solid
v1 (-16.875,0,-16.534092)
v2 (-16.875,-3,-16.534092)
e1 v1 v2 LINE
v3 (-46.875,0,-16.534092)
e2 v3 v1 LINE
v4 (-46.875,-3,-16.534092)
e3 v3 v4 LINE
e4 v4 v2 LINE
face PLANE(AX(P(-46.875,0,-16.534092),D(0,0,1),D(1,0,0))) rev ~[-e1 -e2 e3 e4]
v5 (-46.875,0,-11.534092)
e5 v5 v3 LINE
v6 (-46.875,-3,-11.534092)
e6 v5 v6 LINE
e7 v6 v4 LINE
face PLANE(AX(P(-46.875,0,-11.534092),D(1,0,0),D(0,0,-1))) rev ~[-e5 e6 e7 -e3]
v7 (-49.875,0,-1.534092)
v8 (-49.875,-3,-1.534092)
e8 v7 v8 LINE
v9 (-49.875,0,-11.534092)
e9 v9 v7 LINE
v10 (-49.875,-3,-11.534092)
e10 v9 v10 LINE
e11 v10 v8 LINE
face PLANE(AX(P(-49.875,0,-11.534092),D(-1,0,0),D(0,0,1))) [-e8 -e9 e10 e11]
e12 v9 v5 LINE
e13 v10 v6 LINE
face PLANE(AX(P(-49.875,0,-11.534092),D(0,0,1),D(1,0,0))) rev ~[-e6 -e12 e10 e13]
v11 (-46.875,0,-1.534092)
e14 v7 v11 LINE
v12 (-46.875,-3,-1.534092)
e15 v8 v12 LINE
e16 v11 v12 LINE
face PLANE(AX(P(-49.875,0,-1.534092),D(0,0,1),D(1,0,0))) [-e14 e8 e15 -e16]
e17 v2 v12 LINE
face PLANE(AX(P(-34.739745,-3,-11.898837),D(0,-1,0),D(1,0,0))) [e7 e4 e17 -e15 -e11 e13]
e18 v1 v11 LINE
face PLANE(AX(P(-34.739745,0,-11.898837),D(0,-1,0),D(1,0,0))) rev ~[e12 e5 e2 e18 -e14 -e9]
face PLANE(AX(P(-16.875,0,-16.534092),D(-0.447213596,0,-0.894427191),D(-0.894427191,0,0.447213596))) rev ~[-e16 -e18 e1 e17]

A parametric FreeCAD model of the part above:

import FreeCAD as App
import Part
import Sketcher
Q = App.Units.Quantity


def add_polygon(sketch, points):
    """Adds a closed chain of lines whose ends are joined by coincident constraints."""
    first, n = sketch.GeometryCount, len(points)
    for a, b in zip(points, points[1:] + points[:1]):
        sketch.addGeometry(Part.LineSegment(App.Vector(*a, 0), App.Vector(*b, 0)), False)
    for i in range(n):
        sketch.addConstraint(Sketcher.Constraint("Coincident", first + i, 2, first + (i + 1) % n, 1))

doc = App.newDocument("Part")
body = doc.addObject("PartDesign::Body", "Body")

# Sketch on XZ plane
sketch1 = doc.addObject("Sketcher::SketchObject", "Sketch")
body.addObject(sketch1)
sketch1.AttachmentSupport = (doc.XZ_Plane, [""])
sketch1.MapMode = "FlatFace"
add_polygon(sketch1, [(-16.9, -16.5), (-46.9, -1.5), (-49.9, -1.5), (-49.9, -11.5), (-46.9, -11.5), (-46.9, -16.5)])  # lines 0-5
sketch1.addConstraint([
    Sketcher.Constraint("Horizontal", 1),
    Sketcher.Constraint("Vertical", 2),
    Sketcher.Constraint("Horizontal", 3),
    Sketcher.Constraint("Vertical", 4),
    Sketcher.Constraint("Horizontal", 5),
    Sketcher.Constraint("Vertical", 0, 2, 3, 2),
    Sketcher.Constraint("DistanceX", 1, 2, 1, 1, Q("3 mm")),
    Sketcher.Constraint("DistanceX", 5, 1, 5, 2, Q("30 mm")),
    Sketcher.Constraint("DistanceY", 2, 2, 2, 1, Q("10 mm")),
    Sketcher.Constraint("DistanceY", 4, 2, 4, 1, Q("5 mm")),
    Sketcher.Constraint("DistanceX", 0, 2, -1, 1, Q("46.875 mm")),
    Sketcher.Constraint("DistanceY", 2, 2, -1, 1, Q("11.534092 mm")),
])
pad1 = doc.addObject("PartDesign::Pad", "Pad")
body.addObject(pad1)
pad1.Profile = sketch1
pad1.Length = 3

doc.recompute()
